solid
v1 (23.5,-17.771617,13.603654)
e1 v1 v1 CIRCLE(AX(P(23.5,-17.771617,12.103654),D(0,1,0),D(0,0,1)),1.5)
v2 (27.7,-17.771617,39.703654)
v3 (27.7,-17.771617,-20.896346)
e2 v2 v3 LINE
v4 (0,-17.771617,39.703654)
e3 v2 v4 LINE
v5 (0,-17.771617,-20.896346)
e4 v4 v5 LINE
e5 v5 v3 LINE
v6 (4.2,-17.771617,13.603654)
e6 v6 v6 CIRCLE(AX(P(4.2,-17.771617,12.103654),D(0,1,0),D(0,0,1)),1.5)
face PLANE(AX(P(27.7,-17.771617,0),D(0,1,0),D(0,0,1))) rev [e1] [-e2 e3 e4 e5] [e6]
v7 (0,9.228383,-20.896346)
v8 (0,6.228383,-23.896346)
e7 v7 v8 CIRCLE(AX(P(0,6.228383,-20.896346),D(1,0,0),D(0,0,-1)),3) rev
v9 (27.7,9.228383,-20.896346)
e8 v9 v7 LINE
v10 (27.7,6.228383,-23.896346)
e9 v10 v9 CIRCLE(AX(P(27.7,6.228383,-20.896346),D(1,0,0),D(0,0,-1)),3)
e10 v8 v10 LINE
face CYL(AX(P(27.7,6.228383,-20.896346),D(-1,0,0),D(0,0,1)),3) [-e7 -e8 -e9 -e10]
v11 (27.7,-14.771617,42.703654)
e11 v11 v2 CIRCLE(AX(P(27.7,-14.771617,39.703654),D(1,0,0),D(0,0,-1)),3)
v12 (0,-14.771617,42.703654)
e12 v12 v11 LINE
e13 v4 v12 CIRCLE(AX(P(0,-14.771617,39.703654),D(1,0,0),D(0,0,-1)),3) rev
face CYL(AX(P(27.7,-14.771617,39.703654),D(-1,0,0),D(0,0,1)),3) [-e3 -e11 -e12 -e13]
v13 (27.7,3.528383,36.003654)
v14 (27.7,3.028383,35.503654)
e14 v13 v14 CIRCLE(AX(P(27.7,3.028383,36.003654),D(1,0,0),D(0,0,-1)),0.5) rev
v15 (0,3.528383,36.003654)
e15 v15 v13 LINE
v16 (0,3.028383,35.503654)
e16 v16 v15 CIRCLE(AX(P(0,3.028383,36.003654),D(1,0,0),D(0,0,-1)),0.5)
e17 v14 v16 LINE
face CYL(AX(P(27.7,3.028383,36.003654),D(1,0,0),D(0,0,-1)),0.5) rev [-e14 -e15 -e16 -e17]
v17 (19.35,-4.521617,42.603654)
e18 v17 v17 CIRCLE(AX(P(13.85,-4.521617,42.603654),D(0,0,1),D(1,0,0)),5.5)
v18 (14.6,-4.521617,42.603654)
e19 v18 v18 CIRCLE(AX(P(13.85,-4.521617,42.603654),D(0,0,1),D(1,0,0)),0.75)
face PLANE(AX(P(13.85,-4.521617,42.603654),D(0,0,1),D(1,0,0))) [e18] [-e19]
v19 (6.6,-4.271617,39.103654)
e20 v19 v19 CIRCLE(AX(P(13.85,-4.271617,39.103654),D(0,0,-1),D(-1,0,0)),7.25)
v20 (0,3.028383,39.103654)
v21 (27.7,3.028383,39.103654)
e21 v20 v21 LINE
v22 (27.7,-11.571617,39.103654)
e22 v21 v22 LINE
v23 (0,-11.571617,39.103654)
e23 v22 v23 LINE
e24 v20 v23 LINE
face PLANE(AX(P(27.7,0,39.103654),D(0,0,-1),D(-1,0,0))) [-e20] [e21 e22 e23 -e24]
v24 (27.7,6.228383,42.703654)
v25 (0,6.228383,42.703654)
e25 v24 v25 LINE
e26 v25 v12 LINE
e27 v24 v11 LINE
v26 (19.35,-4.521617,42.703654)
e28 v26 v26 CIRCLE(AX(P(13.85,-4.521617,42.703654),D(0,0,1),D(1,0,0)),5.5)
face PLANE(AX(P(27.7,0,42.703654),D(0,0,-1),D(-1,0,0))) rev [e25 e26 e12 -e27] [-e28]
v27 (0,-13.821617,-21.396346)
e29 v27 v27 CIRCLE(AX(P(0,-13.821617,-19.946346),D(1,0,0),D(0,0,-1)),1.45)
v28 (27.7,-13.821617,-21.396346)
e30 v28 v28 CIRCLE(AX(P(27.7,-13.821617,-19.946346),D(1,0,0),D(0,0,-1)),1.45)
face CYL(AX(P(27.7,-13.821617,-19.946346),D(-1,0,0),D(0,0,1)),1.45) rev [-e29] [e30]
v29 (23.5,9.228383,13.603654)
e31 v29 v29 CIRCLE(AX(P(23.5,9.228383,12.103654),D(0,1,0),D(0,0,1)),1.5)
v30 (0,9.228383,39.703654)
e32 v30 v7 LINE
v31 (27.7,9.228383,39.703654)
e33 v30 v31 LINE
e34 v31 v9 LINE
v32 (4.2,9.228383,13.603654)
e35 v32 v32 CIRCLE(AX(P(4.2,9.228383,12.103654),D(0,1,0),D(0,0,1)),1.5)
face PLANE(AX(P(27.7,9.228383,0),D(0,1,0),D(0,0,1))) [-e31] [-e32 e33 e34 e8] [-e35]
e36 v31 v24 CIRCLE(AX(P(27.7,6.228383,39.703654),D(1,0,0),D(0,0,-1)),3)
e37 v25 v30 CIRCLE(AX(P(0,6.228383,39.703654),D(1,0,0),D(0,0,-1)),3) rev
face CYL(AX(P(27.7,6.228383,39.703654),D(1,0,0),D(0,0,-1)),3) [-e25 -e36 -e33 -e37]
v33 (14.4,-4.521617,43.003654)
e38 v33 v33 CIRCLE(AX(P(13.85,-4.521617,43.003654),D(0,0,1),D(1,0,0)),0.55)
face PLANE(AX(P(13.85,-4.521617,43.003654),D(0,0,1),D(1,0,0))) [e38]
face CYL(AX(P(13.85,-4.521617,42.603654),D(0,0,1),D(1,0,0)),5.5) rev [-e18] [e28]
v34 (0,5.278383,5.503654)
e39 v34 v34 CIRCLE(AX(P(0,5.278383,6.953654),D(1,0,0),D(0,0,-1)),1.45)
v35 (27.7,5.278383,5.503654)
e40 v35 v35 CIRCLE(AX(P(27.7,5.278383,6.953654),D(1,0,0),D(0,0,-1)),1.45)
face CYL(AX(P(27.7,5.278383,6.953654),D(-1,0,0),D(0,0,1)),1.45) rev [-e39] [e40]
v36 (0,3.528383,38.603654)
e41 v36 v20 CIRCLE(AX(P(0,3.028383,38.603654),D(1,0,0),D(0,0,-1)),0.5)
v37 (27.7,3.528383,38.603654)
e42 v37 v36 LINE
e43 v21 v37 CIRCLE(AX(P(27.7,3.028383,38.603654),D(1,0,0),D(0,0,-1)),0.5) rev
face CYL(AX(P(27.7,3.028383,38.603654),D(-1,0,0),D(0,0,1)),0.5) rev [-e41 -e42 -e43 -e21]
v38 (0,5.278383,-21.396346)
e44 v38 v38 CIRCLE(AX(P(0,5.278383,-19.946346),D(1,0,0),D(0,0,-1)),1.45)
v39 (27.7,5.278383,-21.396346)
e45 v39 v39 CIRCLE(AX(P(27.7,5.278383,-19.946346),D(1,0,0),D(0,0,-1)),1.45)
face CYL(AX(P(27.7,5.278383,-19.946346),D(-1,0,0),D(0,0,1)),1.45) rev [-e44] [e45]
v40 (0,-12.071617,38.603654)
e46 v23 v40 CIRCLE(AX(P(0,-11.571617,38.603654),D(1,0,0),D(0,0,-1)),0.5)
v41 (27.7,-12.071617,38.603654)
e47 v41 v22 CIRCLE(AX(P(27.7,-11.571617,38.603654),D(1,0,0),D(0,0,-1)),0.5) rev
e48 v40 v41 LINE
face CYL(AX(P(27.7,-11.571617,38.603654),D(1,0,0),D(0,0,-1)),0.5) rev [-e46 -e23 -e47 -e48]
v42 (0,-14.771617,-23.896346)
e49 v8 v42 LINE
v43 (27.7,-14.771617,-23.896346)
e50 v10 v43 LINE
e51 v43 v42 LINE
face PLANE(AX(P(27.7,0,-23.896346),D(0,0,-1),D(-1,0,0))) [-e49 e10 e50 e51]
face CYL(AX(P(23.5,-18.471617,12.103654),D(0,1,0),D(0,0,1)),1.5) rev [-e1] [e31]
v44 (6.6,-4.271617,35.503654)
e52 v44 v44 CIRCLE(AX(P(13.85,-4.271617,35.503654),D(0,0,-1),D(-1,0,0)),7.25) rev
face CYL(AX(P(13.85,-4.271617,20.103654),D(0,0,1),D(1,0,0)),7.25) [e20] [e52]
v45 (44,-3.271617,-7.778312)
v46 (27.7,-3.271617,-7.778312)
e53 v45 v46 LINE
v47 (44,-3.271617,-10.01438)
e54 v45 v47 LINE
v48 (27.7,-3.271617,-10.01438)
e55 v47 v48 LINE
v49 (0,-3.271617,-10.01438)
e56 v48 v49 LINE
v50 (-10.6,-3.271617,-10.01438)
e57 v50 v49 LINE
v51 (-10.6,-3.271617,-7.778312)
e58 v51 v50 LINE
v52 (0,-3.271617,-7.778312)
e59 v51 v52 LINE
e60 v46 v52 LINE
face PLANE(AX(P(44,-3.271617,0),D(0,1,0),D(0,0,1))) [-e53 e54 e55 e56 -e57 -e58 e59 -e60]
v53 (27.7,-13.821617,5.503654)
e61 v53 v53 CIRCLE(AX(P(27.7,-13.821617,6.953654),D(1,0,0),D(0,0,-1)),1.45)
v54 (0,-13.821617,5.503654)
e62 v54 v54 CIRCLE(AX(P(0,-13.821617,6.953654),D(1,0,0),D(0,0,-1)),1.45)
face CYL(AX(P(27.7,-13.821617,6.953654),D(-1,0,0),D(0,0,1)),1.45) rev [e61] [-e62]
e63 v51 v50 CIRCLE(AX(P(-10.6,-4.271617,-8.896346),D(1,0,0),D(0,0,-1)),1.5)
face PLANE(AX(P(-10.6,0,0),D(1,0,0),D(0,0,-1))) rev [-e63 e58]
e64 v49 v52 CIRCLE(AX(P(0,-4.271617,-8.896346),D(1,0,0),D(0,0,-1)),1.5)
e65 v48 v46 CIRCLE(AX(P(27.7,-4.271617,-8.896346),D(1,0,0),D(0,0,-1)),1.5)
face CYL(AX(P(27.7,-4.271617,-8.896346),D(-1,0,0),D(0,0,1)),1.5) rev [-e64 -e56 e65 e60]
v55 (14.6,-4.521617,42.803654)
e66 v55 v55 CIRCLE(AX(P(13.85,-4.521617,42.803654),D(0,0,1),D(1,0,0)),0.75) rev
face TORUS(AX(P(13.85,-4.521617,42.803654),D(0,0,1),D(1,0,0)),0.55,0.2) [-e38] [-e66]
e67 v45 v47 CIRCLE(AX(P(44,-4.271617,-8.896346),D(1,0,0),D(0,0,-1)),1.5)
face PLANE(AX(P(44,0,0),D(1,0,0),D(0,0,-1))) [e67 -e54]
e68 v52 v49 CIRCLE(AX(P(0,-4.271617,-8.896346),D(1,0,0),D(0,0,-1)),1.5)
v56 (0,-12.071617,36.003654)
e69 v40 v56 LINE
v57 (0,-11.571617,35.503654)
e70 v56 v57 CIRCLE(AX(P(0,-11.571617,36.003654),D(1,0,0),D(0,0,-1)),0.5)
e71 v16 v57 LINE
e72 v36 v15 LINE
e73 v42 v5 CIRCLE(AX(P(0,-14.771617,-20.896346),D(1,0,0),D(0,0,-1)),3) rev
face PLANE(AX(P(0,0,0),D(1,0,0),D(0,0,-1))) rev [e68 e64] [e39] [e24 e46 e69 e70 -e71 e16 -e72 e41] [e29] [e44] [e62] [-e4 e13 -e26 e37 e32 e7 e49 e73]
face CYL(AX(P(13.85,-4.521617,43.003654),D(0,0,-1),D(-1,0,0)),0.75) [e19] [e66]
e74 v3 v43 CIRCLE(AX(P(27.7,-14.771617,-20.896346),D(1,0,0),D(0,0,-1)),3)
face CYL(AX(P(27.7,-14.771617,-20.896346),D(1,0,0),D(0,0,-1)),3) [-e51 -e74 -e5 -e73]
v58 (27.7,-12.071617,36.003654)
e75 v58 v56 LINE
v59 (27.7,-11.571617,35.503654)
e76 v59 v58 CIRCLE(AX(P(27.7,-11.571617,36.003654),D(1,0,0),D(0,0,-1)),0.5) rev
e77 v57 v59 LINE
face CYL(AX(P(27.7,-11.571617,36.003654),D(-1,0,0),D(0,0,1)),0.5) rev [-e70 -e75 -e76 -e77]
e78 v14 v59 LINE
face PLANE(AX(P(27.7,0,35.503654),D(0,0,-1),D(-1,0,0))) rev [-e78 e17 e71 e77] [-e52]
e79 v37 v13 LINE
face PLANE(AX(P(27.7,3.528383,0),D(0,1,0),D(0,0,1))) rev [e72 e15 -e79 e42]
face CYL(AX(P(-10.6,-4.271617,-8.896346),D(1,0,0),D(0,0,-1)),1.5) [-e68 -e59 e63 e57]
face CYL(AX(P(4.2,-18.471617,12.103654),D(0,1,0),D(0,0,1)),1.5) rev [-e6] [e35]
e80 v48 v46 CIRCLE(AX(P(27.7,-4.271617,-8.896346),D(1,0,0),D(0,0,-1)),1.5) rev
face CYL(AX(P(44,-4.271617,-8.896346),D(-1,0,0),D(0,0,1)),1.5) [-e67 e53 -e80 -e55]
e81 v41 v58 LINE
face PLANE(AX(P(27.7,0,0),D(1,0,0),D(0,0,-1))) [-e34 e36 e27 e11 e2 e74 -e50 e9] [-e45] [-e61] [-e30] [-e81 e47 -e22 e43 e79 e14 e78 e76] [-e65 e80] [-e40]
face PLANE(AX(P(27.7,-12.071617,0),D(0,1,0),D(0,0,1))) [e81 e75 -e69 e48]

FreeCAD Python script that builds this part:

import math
import FreeCAD as App
import Part
import Sketcher

V = App.Vector


def edges_at(feature, points):
    """Names of the edges that pass closest to the given points."""
    edges = feature.Shape.Edges
    near = lambda p: min(range(len(edges)), key=lambda i: edges[i].distToShape(Part.Vertex(*p))[0])
    return sorted({f"Edge{near(p) + 1}" for p in points})


def add_polygon(sketch, points):
    """Adds a closed chain of lines whose ends are joined by coincident constraints."""
    first, n = sketch.GeometryCount, len(points)
    for a, b in zip(points, points[1:] + points[:1]):
        sketch.addGeometry(Part.LineSegment(App.Vector(*a, 0), App.Vector(*b, 0)), False)
    for i in range(n):
        sketch.addConstraint(Sketcher.Constraint("Coincident", first + i, 2, first + (i + 1) % n, 1))

doc = App.newDocument("Part")
body = doc.addObject("PartDesign::Body", "Body")

# Sketch on YZ plane
sketch1 = doc.addObject("Sketcher::SketchObject", "Sketch")
body.addObject(sketch1)
sketch1.AttachmentSupport = (doc.YZ_Plane, [""])
sketch1.MapMode = "FlatFace"
add_polygon(sketch1, [(-17.8, 42.7), (-17.8, -23.9), (9.2, -23.9), (9.2, 42.7)])  # lines 0-3
add_polygon(sketch1, [(-12.1, 39.1), (3.5, 39.1), (3.5, 35.5), (-12.1, 35.5)])  # lines 4-7
sketch1.addGeometry(Part.Circle(V(-4.3, -8.9, 0), V(0, 0, 1), 1.5), False)  # 8
sketch1.addGeometry(Part.Circle(V(-13.8, 7, 0), V(0, 0, 1), 1.4), False)  # 9
sketch1.addGeometry(Part.Circle(V(-13.8, -19.9, 0), V(0, 0, 1), 1.4), False)  # 10
sketch1.addGeometry(Part.Circle(V(5.3, -19.9, 0), V(0, 0, 1), 1.4), False)  # 11
sketch1.addGeometry(Part.Circle(V(5.3, 7, 0), V(0, 0, 1), 1.4), False)  # 12
sketch1.addConstraint([
    Sketcher.Constraint("Vertical", 0),
    Sketcher.Constraint("Horizontal", 1),
    Sketcher.Constraint("Vertical", 2),
    Sketcher.Constraint("Horizontal", 3),
    Sketcher.Constraint("Horizontal", 4),
    Sketcher.Constraint("Vertical", 5),
    Sketcher.Constraint("Horizontal", 6),
    Sketcher.Constraint("Vertical", 7),
    Sketcher.Constraint("Equal", 9, 10),
    Sketcher.Constraint("Equal", 10, 11),
    Sketcher.Constraint("Equal", 11, 12),
    Sketcher.Constraint("Horizontal", 10, 3, 11, 3),
    Sketcher.Constraint("Horizontal", 9, 3, 12, 3),
    Sketcher.Constraint("Vertical", 9, 3, 10, 3),
    Sketcher.Constraint("Vertical", 11, 3, 12, 3),
    Sketcher.Constraint("Diameter", 8, 3.0),
    Sketcher.Constraint("Diameter", 9, 2.9),
    Sketcher.Constraint("DistanceX", 1, 1, 1, 2, 27.0),
    Sketcher.Constraint("DistanceX", 4, 1, 4, 2, 15.6),
    Sketcher.Constraint("DistanceY", 0, 2, 0, 1, 66.6),
    Sketcher.Constraint("DistanceY", 5, 2, 5, 1, 3.6),
    Sketcher.Constraint("DistanceY", 0, 2, 8, 3, 15.0),
    Sketcher.Constraint("DistanceY", 8, 3, 4, 2, 48.0),
    Sketcher.Constraint("DistanceY", 10, 3, 9, 3, 26.9),
    Sketcher.Constraint("DistanceX", 10, 3, 11, 3, 19.1),
    Sketcher.Constraint("DistanceX", 0, 2, 8, 3, 13.5),
    Sketcher.Constraint("DistanceX", 4, 2, 2, 2, 5.7),
    Sketcher.Constraint("DistanceX", 9, 3, 8, 3, 9.55),
    Sketcher.Constraint("DistanceY", 8, 3, 9, 3, 15.85),
    Sketcher.Constraint("DistanceX", 8, 3, -1, 1, 4.271617),
    Sketcher.Constraint("DistanceY", 8, 3, -1, 1, 8.896346),
])
pad1 = doc.addObject("PartDesign::Pad", "Pad")
body.addObject(pad1)
pad1.Profile = sketch1
pad1.Length = 27.7
doc.recompute()

fillet = doc.addObject("PartDesign::Fillet", "Fillet")
body.addObject(fillet)
fillet.Base = (pad1, edges_at(pad1, [
    (13.85, -17.772, -23.896),
    (13.85, -17.772, 42.704),
    (13.85, 9.228, 42.704),
    (13.85, 9.228, -23.896),
]))
fillet.Radius = 3
doc.recompute()

fillet2 = doc.addObject("PartDesign::Fillet", "Fillet001")
body.addObject(fillet2)
fillet2.Base = (fillet, edges_at(fillet, [
    (13.85, -12.072, 39.104),
    (13.85, -12.072, 35.504),
    (13.85, 3.528, 35.504),
    (13.85, 3.528, 39.104),
]))
fillet2.Radius = 0.5

# Sketch on XZ plane
sketch2 = doc.addObject("Sketcher::SketchObject", "Sketch001")
body.addObject(sketch2)
sketch2.AttachmentSupport = (doc.XZ_Plane, [""])
sketch2.MapMode = "FlatFace"
sketch2.AttachmentOffset = App.Placement(V(0, 0, -9.228383), App.Rotation())
sketch2.addGeometry([
    Part.Circle(V(4.2, 12.1, 0), V(0, 0, 1), 1.5),
    Part.Circle(V(23.5, 12.1, 0), V(0, 0, 1), 1.5),
], False)
sketch2.addConstraint([
    Sketcher.Constraint("Equal", 0, 1),
    Sketcher.Constraint("Horizontal", 0, 3, 1, 3),
    Sketcher.Constraint("Diameter", 0, 3.0),
    Sketcher.Constraint("DistanceX", -1, 1, 0, 3, 4.2),
    Sketcher.Constraint("DistanceX", -1, 1, 1, 3, 23.5),
    Sketcher.Constraint("DistanceY", -1, 1, 0, 3, 12.103654),
])
pocket1 = doc.addObject("PartDesign::Pocket", "Pocket")
body.addObject(pocket1)
pocket1.Profile = sketch2
pocket1.Length = 27.7
pocket1.Reversed = True
body2 = doc.addObject("PartDesign::Body", "Body001")

# Sketch on YZ plane
sketch3 = doc.addObject("Sketcher::SketchObject", "Sketch002")
body2.addObject(sketch3)
sketch3.AttachmentSupport = (doc.getObject("YZ_Plane001"), [""])
sketch3.MapMode = "FlatFace"
sketch3.addGeometry([
    Part.LineSegment(V(-3.3, -10, 0), V(-3.3, -7.8, 0)),
    Part.ArcOfCircle(Part.Circle(V(-4.3, -8.9, 0), V(0, 0, 1), 1.5), math.radians(48), math.radians(270)),
    Part.ArcOfCircle(Part.Circle(V(-4.3, -8.9, 0), V(0, 0, 1), 1.5), math.radians(-90), math.radians(-48)),
], False)
sketch3.addConstraint([
    Sketcher.Constraint("Coincident", 0, 2, 1, 1),
    Sketcher.Constraint("Tangent", 1, 2, 2, 1),
    Sketcher.Constraint("Coincident", 2, 2, 0, 1),
    Sketcher.Constraint("Vertical", 0),
    Sketcher.Constraint("Equal", 1, 2),
    Sketcher.Constraint("Vertical", 2, 3, 1, 2),
    Sketcher.Constraint("Radius", 1, 1.5),
    Sketcher.Constraint("DistanceX", 2, 3, 0, 2, 1.0),
    Sketcher.Constraint("DistanceY", 0, 2, -1, 1, 7.778312),
    Sketcher.Constraint("DistanceX", 1, 3, -1, 1, 4.271617),
])
pad2 = doc.addObject("PartDesign::Pad", "Pad001")
body2.addObject(pad2)
pad2.Profile = sketch3
pad2.Length = 10.6
pad2.Reversed = True
body.AllowCompound = True
doc.recompute()

boolean = doc.addObject("PartDesign::Boolean", "Boolean")
body.addObject(boolean)
boolean.Type = "Fuse"
boolean.addObjects([body2])

# Sketch on YZ plane
sketch4 = doc.addObject("Sketcher::SketchObject", "Sketch003")
body.addObject(sketch4)
sketch4.AttachmentSupport = (doc.YZ_Plane, [""])
sketch4.MapMode = "FlatFace"
sketch4.addGeometry([
    Part.LineSegment(V(-3.3, -10, 0), V(-3.3, -7.8, 0)),
    Part.ArcOfCircle(Part.Circle(V(-4.3, -8.9, 0), V(0, 0, 1), 1.5), math.radians(48), math.radians(270)),
    Part.ArcOfCircle(Part.Circle(V(-4.3, -8.9, 0), V(0, 0, 1), 1.5), math.radians(-90), math.radians(-48)),
], False)
sketch4.addConstraint([
    Sketcher.Constraint("Coincident", 0, 2, 1, 1),
    Sketcher.Constraint("Tangent", 1, 2, 2, 1),
    Sketcher.Constraint("Coincident", 2, 2, 0, 1),
    Sketcher.Constraint("Vertical", 0),
    Sketcher.Constraint("Equal", 1, 2),
    Sketcher.Constraint("Vertical", 2, 3, 1, 2),
    Sketcher.Constraint("Radius", 1, 1.5),
    Sketcher.Constraint("DistanceX", 2, 3, 0, 2, 1.0),
    Sketcher.Constraint("DistanceY", 0, 2, -1, 1, 7.778312),
    Sketcher.Constraint("DistanceX", 1, 3, -1, 1, 4.271617),
])
pad3 = doc.addObject("PartDesign::Pad", "Pad002")
body.addObject(pad3)
pad3.Profile = sketch4
pad3.Length = 44

# Sketch on XY plane
sketch5 = doc.addObject("Sketcher::SketchObject", "Sketch004")
body.addObject(sketch5)
sketch5.AttachmentSupport = (doc.XY_Plane, [""])
sketch5.MapMode = "FlatFace"
sketch5.AttachmentOffset = App.Placement(V(0, 0, 39.103654), App.Rotation())
sketch5.addGeometry(Part.Circle(V(14, -4, 0), V(0, 0, 1), 7), False)
sketch5.addConstraint([
    Sketcher.Constraint("Diameter", 0, 14.5),
    Sketcher.Constraint("DistanceX", -1, 1, 0, 3, 13.85),
    Sketcher.Constraint("DistanceY", 0, 3, -1, 1, 4.271617),
])
pad4 = doc.addObject("PartDesign::Pad", "Pad003")
body.addObject(pad4)
pad4.Profile = sketch5
pad4.Length = 19
pad4.Reversed = True

# Sketch on XY plane
sketch6 = doc.addObject("Sketcher::SketchObject", "Sketch005")
body.addObject(sketch6)
sketch6.AttachmentSupport = (doc.XY_Plane, [""])
sketch6.MapMode = "FlatFace"
sketch6.AttachmentOffset = App.Placement(V(0, 0, 42.703654), App.Rotation())
sketch6.addGeometry(Part.Circle(V(14, -5, 0), V(0, 0, 1), 6), False)
sketch6.addConstraint([
    Sketcher.Constraint("Diameter", 0, 11.0),
    Sketcher.Constraint("DistanceX", -1, 1, 0, 3, 13.85),
    Sketcher.Constraint("DistanceY", 0, 3, -1, 1, 4.521617),
])
pocket2 = doc.addObject("PartDesign::Pocket", "Pocket001")
body.addObject(pocket2)
pocket2.Profile = sketch6
pocket2.Length = 0.1

# Sketch on XY plane
sketch7 = doc.addObject("Sketcher::SketchObject", "Sketch006")
body.addObject(sketch7)
sketch7.AttachmentSupport = (doc.XY_Plane, [""])
sketch7.MapMode = "FlatFace"
sketch7.AttachmentOffset = App.Placement(V(0, 0, 42.603654), App.Rotation())
sketch7.addGeometry(Part.Circle(V(13.8, -4.5, 0), V(0, 0, 1), 0.8), False)
sketch7.addConstraint([
    Sketcher.Constraint("Diameter", 0, 1.5),
    Sketcher.Constraint("DistanceX", -1, 1, 0, 3, 13.85),
    Sketcher.Constraint("DistanceY", 0, 3, -1, 1, 4.521617),
])
pad5 = doc.addObject("PartDesign::Pad", "Pad004")
body.addObject(pad5)
pad5.Profile = sketch7
pad5.Length = 0.4
doc.recompute()

fillet3 = doc.addObject("PartDesign::Fillet", "Fillet002")
body.addObject(fillet3)
fillet3.Base = (pad5, edges_at(pad5, [(13.1, -4.522, 43.004)]))
fillet3.Radius = 0.2

doc.recompute()
